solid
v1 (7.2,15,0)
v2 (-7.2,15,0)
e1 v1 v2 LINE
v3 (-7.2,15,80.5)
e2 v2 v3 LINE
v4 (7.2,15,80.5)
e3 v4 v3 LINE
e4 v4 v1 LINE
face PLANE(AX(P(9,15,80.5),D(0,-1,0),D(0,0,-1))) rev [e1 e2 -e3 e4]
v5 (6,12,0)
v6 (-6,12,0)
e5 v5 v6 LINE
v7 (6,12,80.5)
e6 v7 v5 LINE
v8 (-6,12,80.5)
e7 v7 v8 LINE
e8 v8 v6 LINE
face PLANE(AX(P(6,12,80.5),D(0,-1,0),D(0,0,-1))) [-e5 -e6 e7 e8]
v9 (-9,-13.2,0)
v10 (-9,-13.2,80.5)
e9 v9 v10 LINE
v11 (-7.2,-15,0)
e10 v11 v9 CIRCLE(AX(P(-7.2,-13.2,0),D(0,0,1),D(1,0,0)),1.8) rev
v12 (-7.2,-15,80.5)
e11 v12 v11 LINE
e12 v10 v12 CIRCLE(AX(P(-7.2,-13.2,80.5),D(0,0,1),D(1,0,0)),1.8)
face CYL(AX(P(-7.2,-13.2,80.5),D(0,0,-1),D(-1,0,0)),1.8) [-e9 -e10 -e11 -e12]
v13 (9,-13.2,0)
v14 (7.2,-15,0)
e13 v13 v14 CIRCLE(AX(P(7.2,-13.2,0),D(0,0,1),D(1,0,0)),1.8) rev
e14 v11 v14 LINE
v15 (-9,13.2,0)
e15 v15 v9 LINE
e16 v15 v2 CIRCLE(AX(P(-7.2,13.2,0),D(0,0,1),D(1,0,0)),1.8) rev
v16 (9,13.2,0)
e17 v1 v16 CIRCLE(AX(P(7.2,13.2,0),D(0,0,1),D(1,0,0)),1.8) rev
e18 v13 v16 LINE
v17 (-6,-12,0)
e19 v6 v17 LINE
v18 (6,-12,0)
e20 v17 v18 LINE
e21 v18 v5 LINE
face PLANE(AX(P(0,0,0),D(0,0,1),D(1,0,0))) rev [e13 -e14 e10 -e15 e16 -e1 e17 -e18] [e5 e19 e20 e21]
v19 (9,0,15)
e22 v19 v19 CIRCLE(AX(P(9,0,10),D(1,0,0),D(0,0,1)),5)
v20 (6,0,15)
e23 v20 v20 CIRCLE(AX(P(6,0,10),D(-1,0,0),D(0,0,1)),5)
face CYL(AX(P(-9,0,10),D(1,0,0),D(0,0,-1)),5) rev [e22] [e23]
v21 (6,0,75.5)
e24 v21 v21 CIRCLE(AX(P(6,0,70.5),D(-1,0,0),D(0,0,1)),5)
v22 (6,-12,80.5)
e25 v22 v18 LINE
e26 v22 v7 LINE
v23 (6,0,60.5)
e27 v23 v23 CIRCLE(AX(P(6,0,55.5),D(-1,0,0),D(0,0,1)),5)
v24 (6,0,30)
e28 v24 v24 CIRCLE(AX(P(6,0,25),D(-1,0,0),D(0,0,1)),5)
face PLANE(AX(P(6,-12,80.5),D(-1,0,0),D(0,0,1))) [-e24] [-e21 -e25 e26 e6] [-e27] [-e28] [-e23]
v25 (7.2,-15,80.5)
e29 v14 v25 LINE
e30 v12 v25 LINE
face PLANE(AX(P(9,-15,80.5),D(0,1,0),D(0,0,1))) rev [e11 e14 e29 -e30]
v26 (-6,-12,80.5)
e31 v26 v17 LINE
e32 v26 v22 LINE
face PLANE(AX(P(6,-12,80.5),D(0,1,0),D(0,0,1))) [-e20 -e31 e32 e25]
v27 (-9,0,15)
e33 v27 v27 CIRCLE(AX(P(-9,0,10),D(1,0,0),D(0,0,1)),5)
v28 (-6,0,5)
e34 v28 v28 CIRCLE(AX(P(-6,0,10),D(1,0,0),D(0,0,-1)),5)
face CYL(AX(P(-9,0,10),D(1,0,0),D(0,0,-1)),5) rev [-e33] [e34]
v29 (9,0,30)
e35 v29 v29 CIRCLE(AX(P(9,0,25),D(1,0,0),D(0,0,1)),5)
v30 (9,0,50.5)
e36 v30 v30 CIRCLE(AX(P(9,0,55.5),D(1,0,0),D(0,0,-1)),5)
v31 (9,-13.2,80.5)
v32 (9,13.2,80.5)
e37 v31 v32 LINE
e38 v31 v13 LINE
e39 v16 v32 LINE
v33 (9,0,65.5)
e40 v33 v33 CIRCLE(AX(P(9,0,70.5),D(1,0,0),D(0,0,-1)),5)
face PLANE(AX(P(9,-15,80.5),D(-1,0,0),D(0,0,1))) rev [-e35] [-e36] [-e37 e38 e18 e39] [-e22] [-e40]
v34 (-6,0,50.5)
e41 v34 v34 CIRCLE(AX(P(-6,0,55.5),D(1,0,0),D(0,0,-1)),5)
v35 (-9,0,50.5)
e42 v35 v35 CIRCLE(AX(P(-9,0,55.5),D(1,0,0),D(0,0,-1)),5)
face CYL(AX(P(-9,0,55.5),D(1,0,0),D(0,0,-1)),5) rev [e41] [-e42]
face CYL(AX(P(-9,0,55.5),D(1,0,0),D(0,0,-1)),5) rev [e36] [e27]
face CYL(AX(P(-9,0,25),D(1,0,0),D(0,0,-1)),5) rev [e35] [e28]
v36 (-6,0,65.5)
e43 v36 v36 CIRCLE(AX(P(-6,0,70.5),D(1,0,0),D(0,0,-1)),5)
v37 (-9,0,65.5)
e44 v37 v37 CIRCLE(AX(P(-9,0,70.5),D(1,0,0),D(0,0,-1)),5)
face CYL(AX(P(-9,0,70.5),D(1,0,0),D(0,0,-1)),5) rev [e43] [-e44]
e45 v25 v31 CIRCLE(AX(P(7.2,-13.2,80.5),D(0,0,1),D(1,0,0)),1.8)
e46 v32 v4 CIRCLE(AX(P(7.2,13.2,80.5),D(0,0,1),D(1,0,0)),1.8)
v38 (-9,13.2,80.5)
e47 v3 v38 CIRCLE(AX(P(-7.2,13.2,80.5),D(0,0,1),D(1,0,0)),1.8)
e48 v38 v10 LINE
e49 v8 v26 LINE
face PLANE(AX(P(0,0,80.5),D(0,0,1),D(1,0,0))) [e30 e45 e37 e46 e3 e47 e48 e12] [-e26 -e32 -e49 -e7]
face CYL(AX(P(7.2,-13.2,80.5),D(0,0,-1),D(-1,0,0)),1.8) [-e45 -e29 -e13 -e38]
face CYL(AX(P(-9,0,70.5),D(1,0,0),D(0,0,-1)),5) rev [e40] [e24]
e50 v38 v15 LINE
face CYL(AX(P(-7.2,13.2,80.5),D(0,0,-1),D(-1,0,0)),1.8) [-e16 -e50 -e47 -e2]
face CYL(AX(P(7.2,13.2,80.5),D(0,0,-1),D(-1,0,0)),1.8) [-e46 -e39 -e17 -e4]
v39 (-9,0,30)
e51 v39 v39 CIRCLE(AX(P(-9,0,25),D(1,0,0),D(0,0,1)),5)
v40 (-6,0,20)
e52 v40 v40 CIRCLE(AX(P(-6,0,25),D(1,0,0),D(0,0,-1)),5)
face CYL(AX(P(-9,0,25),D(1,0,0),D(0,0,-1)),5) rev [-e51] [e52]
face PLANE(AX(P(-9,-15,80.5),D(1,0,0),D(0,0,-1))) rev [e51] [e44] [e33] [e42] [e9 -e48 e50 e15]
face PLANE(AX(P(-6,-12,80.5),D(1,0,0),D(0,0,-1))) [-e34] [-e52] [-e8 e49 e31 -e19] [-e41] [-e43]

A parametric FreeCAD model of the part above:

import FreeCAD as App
import Part
import Sketcher
from FreeCAD import Vector


def edges_at(feature, points):
    """Names of the edges that pass closest to the given points."""
    edges = feature.Shape.Edges
    near = lambda p: min(range(len(edges)), key=lambda i: edges[i].distToShape(Part.Vertex(*p))[0])
    return sorted({f"Edge{near(p) + 1}" for p in points})


def add_polygon(sketch, points):
    """Adds a closed chain of lines whose ends are joined by coincident constraints."""
    first, n = sketch.GeometryCount, len(points)
    for a, b in zip(points, points[1:] + points[:1]):
        sketch.addGeometry(Part.LineSegment(App.Vector(*a, 0), App.Vector(*b, 0)), False)
    for i in range(n):
        sketch.addConstraint(Sketcher.Constraint("Coincident", first + i, 2, first + (i + 1) % n, 1))

doc = App.newDocument("Part")
params = doc.addObject("Spreadsheet::Sheet", "Params")
for row, (alias, value) in enumerate([
    ("sketch1_width", "18 mm"),
    ("sketch1_width2", "12 mm"),
    ("sketch1_height", "30 mm"),
    ("sketch1_height2", "24 mm"),
    ("pad1_length", "80.5 mm"),
    ("sketch2_diameter", "10 mm"),
    ("fillet_radius", "1.8 mm"),
], start=1):
    params.set(f"A{row}", alias)
    params.set(f"B{row}", "=" + value)
    params.setAlias(f"B{row}", alias)

body = doc.addObject("PartDesign::Body", "Body")

sketch1 = body.newObject("Sketcher::SketchObject", "Sketch")
sketch1.AttachmentSupport = (doc.getObject("XY_Plane"), [""])
sketch1.MapMode = "FlatFace"
add_polygon(sketch1, [(-9, 15), (-9, -15), (9, -15), (9, 15)])
add_polygon(sketch1, [(6, -12), (-6, -12), (-6, 12), (6, 12)])
sketch1.addConstraint([
    Sketcher.Constraint("Vertical", 0),
    Sketcher.Constraint("Horizontal", 1),
    Sketcher.Constraint("Vertical", 2),
    Sketcher.Constraint("Horizontal", 3),
    Sketcher.Constraint("Horizontal", 4),
    Sketcher.Constraint("Vertical", 5),
    Sketcher.Constraint("Horizontal", 6),
    Sketcher.Constraint("Vertical", 7),
    Sketcher.Constraint("Symmetric", 0, 2, 2, 2, -1, 1),
    Sketcher.Constraint("Symmetric", 4, 2, 6, 2, -1, 1),
    Sketcher.Constraint("DistanceX", 1, 1, 1, 2, 18.0),
    Sketcher.Constraint("DistanceX", 4, 2, 4, 1, 12.0),
    Sketcher.Constraint("DistanceY", 0, 2, 0, 1, 30.0),
    Sketcher.Constraint("DistanceY", 5, 1, 5, 2, 24.0),
])
sketch1.setExpression("Constraints[18]", "Params.sketch1_width")
sketch1.setExpression("Constraints[19]", "Params.sketch1_width2")
sketch1.setExpression("Constraints[20]", "Params.sketch1_height")
sketch1.setExpression("Constraints[21]", "Params.sketch1_height2")
pad1 = body.newObject("PartDesign::Pad", "Pad")
pad1.Profile = sketch1
pad1.setExpression("Length", "Params.pad1_length")

sketch2 = body.newObject("Sketcher::SketchObject", "Sketch001")
sketch2.AttachmentSupport = (doc.getObject("YZ_Plane"), [""])
sketch2.MapMode = "FlatFace"
sketch2.AttachmentOffset = App.Placement(Vector(0, 0, 9), App.Rotation())
sketch2.addGeometry([
    Part.Circle(Vector(0, 70, 0), Vector(0, 0, 1), 5),
    Part.Circle(Vector(0, 56, 0), Vector(0, 0, 1), 5),
    Part.Circle(Vector(0, 25, 0), Vector(0, 0, 1), 5),
    Part.Circle(Vector(0, 10, 0), Vector(0, 0, 1), 5),
], False)
sketch2.addConstraint([
    Sketcher.Constraint("Equal", 0, 1),
    Sketcher.Constraint("Equal", 1, 2),
    Sketcher.Constraint("Equal", 2, 3),
    Sketcher.Constraint("PointOnObject", 0, 3, -2),
    Sketcher.Constraint("PointOnObject", 1, 3, -2),
    Sketcher.Constraint("PointOnObject", 2, 3, -2),
    Sketcher.Constraint("PointOnObject", 3, 3, -2),
    Sketcher.Constraint("Diameter", 0, 10.0),
    Sketcher.Constraint("DistanceY", -1, 1, 2, 3, 25.0),
    Sketcher.Constraint("DistanceY", -1, 1, 3, 3, 10.0),
    Sketcher.Constraint("DistanceY", 1, 3, 0, 3, 15.0),
    Sketcher.Constraint("DistanceY", -1, 1, 0, 3, 70.5),
])
sketch2.setExpression("Constraints[7]", "Params.sketch2_diameter")
pocket1 = body.newObject("PartDesign::Pocket", "Pocket")
pocket1.Profile = sketch2
pocket1.Type = "ThroughAll"
doc.recompute()

fillet = body.newObject("PartDesign::Fillet", "Fillet")
fillet.Base = (pocket1, edges_at(pocket1, [
    (-9, 15, 40.25),
    (9, 15, 40.25),
    (9, -15, 40.25),
    (-9, -15, 40.25),
]))
fillet.setExpression("Radius", "Params.fillet_radius")

doc.recompute()
